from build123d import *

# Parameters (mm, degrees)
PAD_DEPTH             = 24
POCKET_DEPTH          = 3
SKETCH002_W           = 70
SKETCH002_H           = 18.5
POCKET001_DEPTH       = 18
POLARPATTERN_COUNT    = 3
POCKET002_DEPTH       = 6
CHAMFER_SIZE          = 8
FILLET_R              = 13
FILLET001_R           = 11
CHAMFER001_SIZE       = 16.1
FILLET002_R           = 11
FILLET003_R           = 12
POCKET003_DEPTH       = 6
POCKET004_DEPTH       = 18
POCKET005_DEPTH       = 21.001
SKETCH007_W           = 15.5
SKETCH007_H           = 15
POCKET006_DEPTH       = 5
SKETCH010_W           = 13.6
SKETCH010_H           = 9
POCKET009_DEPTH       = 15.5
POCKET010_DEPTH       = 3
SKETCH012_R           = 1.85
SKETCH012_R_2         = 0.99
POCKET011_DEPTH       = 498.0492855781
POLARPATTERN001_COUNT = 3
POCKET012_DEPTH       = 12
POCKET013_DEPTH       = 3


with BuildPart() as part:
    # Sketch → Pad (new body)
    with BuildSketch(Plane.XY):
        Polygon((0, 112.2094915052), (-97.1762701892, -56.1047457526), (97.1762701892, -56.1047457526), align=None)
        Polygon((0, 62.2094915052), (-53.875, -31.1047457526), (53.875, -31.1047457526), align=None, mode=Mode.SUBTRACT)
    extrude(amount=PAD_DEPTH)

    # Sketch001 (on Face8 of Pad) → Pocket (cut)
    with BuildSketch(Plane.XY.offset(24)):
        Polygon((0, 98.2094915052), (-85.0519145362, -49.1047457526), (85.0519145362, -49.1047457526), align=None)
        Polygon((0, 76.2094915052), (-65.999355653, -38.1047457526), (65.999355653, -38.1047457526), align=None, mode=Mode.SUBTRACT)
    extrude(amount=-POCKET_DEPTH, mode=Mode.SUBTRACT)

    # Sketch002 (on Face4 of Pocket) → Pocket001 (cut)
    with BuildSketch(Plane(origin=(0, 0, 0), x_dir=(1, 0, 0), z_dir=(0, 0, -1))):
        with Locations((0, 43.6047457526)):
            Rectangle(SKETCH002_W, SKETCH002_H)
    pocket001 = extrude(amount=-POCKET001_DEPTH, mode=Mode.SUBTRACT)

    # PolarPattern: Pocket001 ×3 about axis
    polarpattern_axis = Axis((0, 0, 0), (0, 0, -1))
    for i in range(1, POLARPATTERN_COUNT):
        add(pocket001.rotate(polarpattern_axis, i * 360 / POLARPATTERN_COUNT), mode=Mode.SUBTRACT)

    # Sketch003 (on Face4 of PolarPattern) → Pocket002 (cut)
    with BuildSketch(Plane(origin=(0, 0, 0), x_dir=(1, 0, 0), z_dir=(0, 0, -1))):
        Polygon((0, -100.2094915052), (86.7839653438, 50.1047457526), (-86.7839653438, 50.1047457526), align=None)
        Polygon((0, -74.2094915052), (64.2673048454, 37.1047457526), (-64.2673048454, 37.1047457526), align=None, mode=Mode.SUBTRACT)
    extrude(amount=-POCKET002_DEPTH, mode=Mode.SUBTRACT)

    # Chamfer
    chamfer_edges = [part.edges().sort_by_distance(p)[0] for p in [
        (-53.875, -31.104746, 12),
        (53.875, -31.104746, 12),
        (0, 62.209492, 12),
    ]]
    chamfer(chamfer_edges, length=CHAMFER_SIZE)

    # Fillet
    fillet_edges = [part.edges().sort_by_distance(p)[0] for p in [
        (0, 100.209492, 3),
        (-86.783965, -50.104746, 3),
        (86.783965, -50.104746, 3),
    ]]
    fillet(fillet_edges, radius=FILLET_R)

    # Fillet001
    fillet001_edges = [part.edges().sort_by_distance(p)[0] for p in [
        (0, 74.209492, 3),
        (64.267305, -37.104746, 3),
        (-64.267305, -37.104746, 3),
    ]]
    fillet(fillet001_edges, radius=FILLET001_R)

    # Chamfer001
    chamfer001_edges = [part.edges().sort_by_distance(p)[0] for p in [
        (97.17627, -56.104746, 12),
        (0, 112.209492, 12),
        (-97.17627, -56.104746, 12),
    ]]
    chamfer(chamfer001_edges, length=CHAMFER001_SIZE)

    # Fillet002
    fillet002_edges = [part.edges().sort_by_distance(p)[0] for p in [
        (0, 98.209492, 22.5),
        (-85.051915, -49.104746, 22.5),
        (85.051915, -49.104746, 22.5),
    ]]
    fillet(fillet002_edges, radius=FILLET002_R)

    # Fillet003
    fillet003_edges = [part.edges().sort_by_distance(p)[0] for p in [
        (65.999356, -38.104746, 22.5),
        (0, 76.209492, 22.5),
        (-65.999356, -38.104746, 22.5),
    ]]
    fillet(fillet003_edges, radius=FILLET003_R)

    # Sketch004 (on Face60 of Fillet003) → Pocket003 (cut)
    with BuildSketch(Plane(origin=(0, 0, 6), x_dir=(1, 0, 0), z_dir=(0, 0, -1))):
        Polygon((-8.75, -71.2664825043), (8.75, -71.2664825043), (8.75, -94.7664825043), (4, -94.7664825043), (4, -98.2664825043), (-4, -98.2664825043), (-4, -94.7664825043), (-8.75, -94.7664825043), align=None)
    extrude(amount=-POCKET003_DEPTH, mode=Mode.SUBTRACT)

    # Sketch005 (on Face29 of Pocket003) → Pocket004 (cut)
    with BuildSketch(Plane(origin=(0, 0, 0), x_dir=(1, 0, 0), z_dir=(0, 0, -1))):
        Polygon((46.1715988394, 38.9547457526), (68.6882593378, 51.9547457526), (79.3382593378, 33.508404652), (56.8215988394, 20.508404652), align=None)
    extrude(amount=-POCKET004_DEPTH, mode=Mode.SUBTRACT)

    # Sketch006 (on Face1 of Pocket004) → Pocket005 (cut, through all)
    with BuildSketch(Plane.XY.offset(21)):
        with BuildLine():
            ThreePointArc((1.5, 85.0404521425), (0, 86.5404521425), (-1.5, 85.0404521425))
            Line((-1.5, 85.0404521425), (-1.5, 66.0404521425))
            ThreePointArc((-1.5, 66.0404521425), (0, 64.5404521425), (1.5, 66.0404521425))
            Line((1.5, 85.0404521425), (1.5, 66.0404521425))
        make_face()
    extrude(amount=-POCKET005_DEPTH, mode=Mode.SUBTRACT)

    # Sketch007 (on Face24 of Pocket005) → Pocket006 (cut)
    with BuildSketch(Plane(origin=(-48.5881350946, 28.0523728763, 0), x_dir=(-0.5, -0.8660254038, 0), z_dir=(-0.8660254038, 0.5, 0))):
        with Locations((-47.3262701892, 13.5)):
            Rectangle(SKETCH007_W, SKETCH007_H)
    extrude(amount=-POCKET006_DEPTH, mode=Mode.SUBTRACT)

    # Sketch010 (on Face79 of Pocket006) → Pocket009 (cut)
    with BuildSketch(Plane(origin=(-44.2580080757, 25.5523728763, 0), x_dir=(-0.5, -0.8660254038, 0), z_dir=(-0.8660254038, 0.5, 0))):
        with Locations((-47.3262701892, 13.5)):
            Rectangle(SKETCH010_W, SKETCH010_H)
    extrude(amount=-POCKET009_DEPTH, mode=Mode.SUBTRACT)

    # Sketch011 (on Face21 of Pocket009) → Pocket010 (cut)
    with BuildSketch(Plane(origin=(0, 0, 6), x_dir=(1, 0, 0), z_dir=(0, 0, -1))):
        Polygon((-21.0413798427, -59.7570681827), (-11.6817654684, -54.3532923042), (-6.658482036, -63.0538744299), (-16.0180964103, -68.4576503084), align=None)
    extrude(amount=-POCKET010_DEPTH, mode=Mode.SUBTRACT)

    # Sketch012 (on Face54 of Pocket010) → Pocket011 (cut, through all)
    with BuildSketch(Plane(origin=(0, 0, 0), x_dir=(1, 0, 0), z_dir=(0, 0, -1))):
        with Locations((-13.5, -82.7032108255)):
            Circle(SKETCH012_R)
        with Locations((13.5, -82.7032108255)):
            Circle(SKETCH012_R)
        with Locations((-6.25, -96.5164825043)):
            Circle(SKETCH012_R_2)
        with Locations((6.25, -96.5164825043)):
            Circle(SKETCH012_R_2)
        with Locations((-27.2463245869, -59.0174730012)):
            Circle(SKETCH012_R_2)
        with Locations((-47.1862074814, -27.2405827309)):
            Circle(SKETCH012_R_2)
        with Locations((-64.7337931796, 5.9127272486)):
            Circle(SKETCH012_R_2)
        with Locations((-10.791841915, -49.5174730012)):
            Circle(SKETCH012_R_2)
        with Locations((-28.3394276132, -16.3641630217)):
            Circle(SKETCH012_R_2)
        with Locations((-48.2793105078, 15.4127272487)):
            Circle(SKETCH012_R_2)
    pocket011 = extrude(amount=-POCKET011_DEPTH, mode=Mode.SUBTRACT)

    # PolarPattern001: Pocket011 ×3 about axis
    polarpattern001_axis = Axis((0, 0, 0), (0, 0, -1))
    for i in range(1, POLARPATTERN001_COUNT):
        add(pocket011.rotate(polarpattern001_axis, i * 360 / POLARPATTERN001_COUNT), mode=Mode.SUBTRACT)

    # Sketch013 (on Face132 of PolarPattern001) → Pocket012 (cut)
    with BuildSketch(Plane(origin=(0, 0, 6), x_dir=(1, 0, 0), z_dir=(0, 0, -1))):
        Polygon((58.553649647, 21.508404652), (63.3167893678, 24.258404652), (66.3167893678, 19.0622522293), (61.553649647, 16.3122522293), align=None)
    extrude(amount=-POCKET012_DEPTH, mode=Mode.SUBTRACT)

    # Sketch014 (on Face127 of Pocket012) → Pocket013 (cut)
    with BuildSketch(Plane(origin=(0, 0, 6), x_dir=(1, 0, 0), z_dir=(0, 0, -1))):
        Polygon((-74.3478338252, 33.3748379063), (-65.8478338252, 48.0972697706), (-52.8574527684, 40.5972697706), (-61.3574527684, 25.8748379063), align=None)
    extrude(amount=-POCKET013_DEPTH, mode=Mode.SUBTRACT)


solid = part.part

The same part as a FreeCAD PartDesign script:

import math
import FreeCAD as App
import Part
import Sketcher
from FreeCAD import Vector
Q = App.Units.Quantity


def edges_at(feature, points):
    """Names of the edges that pass closest to the given points."""
    edges = feature.Shape.Edges
    near = lambda p: min(range(len(edges)), key=lambda i: edges[i].distToShape(Part.Vertex(*p))[0])
    return sorted({f"Edge{near(p) + 1}" for p in points})

doc = App.newDocument("Part")
body = doc.addObject("PartDesign::Body", "Body")

# Sketch on XY plane
sketch1 = doc.addObject("Sketcher::SketchObject", "Sketch")
body.addObject(sketch1)
sketch1.AttachmentSupport = (doc.XY_Plane, [""])
sketch1.MapMode = "FlatFace"
sketch1.addGeometry([
    Part.LineSegment(Vector(0, 112.209492, 0), Vector(-97.17627, -56.104746, 0)),  # 0
    Part.LineSegment(Vector(-97.17627, -56.104746, 0), Vector(97.17627, -56.104746, 0)),  # 1
    Part.LineSegment(Vector(97.17627, -56.104746, 0), Vector(0, 112.209492, 0)),  # 2
    Part.LineSegment(Vector(-53.875, -31.104746, 0), Vector(0, 62.209492, 0)),  # 3
    Part.LineSegment(Vector(0, 62.209492, 0), Vector(53.875, -31.104746, 0)),  # 4
    Part.LineSegment(Vector(53.875, -31.104746, 0), Vector(-53.875, -31.104746, 0)),  # 5
], False)
sketch1.addConstraint([
    Sketcher.Constraint("Coincident", 0, 2, 1, 1),
    Sketcher.Constraint("Coincident", 1, 2, 2, 1),
    Sketcher.Constraint("Coincident", 2, 2, 0, 1),
    Sketcher.Constraint("Coincident", 3, 2, 4, 1),
    Sketcher.Constraint("Coincident", 4, 2, 5, 1),
    Sketcher.Constraint("Coincident", 5, 2, 3, 1),
    Sketcher.Constraint("Horizontal", 1),
    Sketcher.Constraint("Horizontal", 5),
    Sketcher.Constraint("PointOnObject", 2, 2, -2),
    Sketcher.Constraint("PointOnObject", 3, 2, -2),
    Sketcher.Constraint("Parallel", 0, 3),
    Sketcher.Constraint("Parallel", 2, 4),
    Sketcher.Constraint("Equal", 0, 2),
    Sketcher.Constraint("Angle", 0, Q("-120 deg")),
    Sketcher.Constraint("DistanceY", 3, 2, 2, 2, Q("50 mm")),
    Sketcher.Constraint("DistanceY", 1, 2, 4, 2, Q("25 mm")),
    Sketcher.Constraint("DistanceX", 5, 2, 5, 1, Q("107.75 mm")),
    Sketcher.Constraint("DistanceY", -1, 1, 2, 2, Q("112.209492 mm")),
])
pad1 = doc.addObject("PartDesign::Pad", "Pad")
body.addObject(pad1)
pad1.Profile = sketch1
pad1.Length = 24

# Sketch on XY plane
sketch2 = doc.addObject("Sketcher::SketchObject", "Sketch001")
body.addObject(sketch2)
sketch2.AttachmentSupport = (doc.XY_Plane, [""])
sketch2.MapMode = "FlatFace"
sketch2.AttachmentOffset = App.Placement(Vector(0, 0, 24), App.Rotation())
sketch2.addGeometry([
    Part.LineSegment(Vector(0, 98.209492, 0), Vector(-85.051915, -49.104746, 0)),  # 0
    Part.LineSegment(Vector(-85.051915, -49.104746, 0), Vector(85.051915, -49.104746, 0)),  # 1
    Part.LineSegment(Vector(85.051915, -49.104746, 0), Vector(0, 98.209492, 0)),  # 2
    Part.LineSegment(Vector(-65.999356, -38.104746, 0), Vector(0, 76.209492, 0)),  # 3
    Part.LineSegment(Vector(0, 76.209492, 0), Vector(65.999356, -38.104746, 0)),  # 4
    Part.LineSegment(Vector(65.999356, -38.104746, 0), Vector(-65.999356, -38.104746, 0)),  # 5
], False)
sketch2.addConstraint([
    Sketcher.Constraint("Coincident", 0, 2, 1, 1),
    Sketcher.Constraint("Coincident", 1, 2, 2, 1),
    Sketcher.Constraint("Coincident", 2, 2, 0, 1),
    Sketcher.Constraint("Coincident", 3, 2, 4, 1),
    Sketcher.Constraint("Coincident", 4, 2, 5, 1),
    Sketcher.Constraint("Coincident", 5, 2, 3, 1),
    Sketcher.Constraint("Horizontal", 1),
    Sketcher.Constraint("Horizontal", 5),
    Sketcher.Constraint("PointOnObject", 2, 2, -2),
    Sketcher.Constraint("PointOnObject", 3, 2, -2),
    Sketcher.Constraint("Parallel", 0, 3),
    Sketcher.Constraint("Parallel", 2, 4),
    Sketcher.Constraint("Equal", 0, 2),
    Sketcher.Constraint("Angle", 0, Q("-120 deg")),
    Sketcher.Constraint("DistanceY", 3, 2, 2, 2, Q("22 mm")),
    Sketcher.Constraint("DistanceY", 1, 2, 4, 2, Q("11 mm")),
    Sketcher.Constraint("DistanceX", 1, 1, 1, 2, Q("170.103829 mm")),
    Sketcher.Constraint("DistanceY", -1, 1, 2, 2, Q("98.209492 mm")),
])
pocket1 = doc.addObject("PartDesign::Pocket", "Pocket")
body.addObject(pocket1)
pocket1.Profile = sketch2
pocket1.Length = 3

# Sketch on XY plane
sketch3 = doc.addObject("Sketcher::SketchObject", "Sketch002")
body.addObject(sketch3)
sketch3.AttachmentSupport = (doc.XY_Plane, [""])
sketch3.MapMode = "FlatFace"
sketch3.addGeometry([
    Part.LineSegment(Vector(-35, -52.854746, 0), Vector(-35, -34.354746, 0)),
    Part.LineSegment(Vector(-35, -34.354746, 0), Vector(35, -34.354746, 0)),
    Part.LineSegment(Vector(35, -34.354746, 0), Vector(35, -52.854746, 0)),
    Part.LineSegment(Vector(35, -52.854746, 0), Vector(-35, -52.854746, 0)),
], False)
sketch3.addConstraint([
    Sketcher.Constraint("Coincident", 0, 2, 1, 1),
    Sketcher.Constraint("Coincident", 1, 2, 2, 1),
    Sketcher.Constraint("Coincident", 2, 2, 3, 1),
    Sketcher.Constraint("Coincident", 3, 2, 0, 1),
    Sketcher.Constraint("Vertical", 0),
    Sketcher.Constraint("Horizontal", 1),
    Sketcher.Constraint("Vertical", 2),
    Sketcher.Constraint("Horizontal", 3),
    Sketcher.Constraint("DistanceX", 1, 1, 1, 2, Q("70 mm")),
    Sketcher.Constraint("DistanceY", 0, 1, 0, 2, Q("18.5 mm")),
    Sketcher.Constraint("DistanceX", 0, 2, -1, 1, Q("35 mm")),
    Sketcher.Constraint("DistanceY", 0, 2, -1, 1, Q("34.354746 mm")),
])
pocket2 = doc.addObject("PartDesign::Pocket", "Pocket001")
body.addObject(pocket2)
pocket2.Profile = sketch3
pocket2.Length = 18
pocket2.Reversed = True
doc.recompute()

polarpattern = doc.addObject("PartDesign::PolarPattern", "PolarPattern")
body.addObject(polarpattern)
polarpattern.Originals = [pocket2]
polarpattern.Axis = (doc.Z_Axis, [""])
polarpattern.Angle = 360
polarpattern.Occurrences = 3
body.Tip = polarpattern

# Sketch on XY plane
sketch4 = doc.addObject("Sketcher::SketchObject", "Sketch003")
body.addObject(sketch4)
sketch4.AttachmentSupport = (doc.XY_Plane, [""])
sketch4.MapMode = "FlatFace"
sketch4.addGeometry([
    Part.LineSegment(Vector(0, 100.209492, 0), Vector(86.783965, -50.104746, 0)),  # 0
    Part.LineSegment(Vector(86.783965, -50.104746, 0), Vector(-86.783965, -50.104746, 0)),  # 1
    Part.LineSegment(Vector(-86.783965, -50.104746, 0), Vector(0, 100.209492, 0)),  # 2
    Part.LineSegment(Vector(64.267305, -37.104746, 0), Vector(0, 74.209492, 0)),  # 3
    Part.LineSegment(Vector(0, 74.209492, 0), Vector(-64.267305, -37.104746, 0)),  # 4
    Part.LineSegment(Vector(-64.267305, -37.104746, 0), Vector(64.267305, -37.104746, 0)),  # 5
], False)
sketch4.addConstraint([
    Sketcher.Constraint("Coincident", 0, 2, 1, 1),
    Sketcher.Constraint("Coincident", 1, 2, 2, 1),
    Sketcher.Constraint("Coincident", 2, 2, 0, 1),
    Sketcher.Constraint("Coincident", 3, 2, 4, 1),
    Sketcher.Constraint("Coincident", 4, 2, 5, 1),
    Sketcher.Constraint("Coincident", 5, 2, 3, 1),
    Sketcher.Constraint("Horizontal", 1),
    Sketcher.Constraint("Horizontal", 5),
    Sketcher.Constraint("PointOnObject", 2, 2, -2),
    Sketcher.Constraint("PointOnObject", 3, 2, -2),
    Sketcher.Constraint("Parallel", 0, 3),
    Sketcher.Constraint("Parallel", 2, 4),
    Sketcher.Constraint("Equal", 0, 2),
    Sketcher.Constraint("Angle", 0, Q("-60 deg")),
    Sketcher.Constraint("DistanceY", 3, 2, 2, 2, Q("26 mm")),
    Sketcher.Constraint("DistanceY", 1, 2, 4, 2, Q("13 mm")),
    Sketcher.Constraint("DistanceX", 1, 2, 1, 1, Q("173.567931 mm")),
    Sketcher.Constraint("DistanceY", -1, 1, 2, 2, Q("100.209492 mm")),
])
pocket3 = doc.addObject("PartDesign::Pocket", "Pocket002")
body.addObject(pocket3)
pocket3.Profile = sketch4
pocket3.Length = 6
pocket3.Reversed = True
doc.recompute()

chamfer = doc.addObject("PartDesign::Chamfer", "Chamfer")
body.addObject(chamfer)
chamfer.Base = (pocket3, edges_at(pocket3, [(-53.875, -31.105, 12), (53.875, -31.105, 12), (0, 62.209, 12)]))
chamfer.Size = 8
doc.recompute()

fillet = doc.addObject("PartDesign::Fillet", "Fillet")
body.addObject(fillet)
fillet.Base = (chamfer, edges_at(chamfer, [(0, 100.209, 3), (-86.784, -50.105, 3), (86.784, -50.105, 3)]))
fillet.Radius = 13
doc.recompute()

fillet2 = doc.addObject("PartDesign::Fillet", "Fillet001")
body.addObject(fillet2)
fillet2.Base = (fillet, edges_at(fillet, [(0, 74.209, 3), (64.267, -37.105, 3), (-64.267, -37.105, 3)]))
fillet2.Radius = 11
doc.recompute()

chamfer2 = doc.addObject("PartDesign::Chamfer", "Chamfer001")
body.addObject(chamfer2)
chamfer2.Base = (fillet2, edges_at(fillet2, [(97.176, -56.105, 12), (0, 112.209, 12), (-97.176, -56.105, 12)]))
chamfer2.Size = 16.1
doc.recompute()

fillet3 = doc.addObject("PartDesign::Fillet", "Fillet002")
body.addObject(fillet3)
fillet3.Base = (chamfer2, edges_at(chamfer2, [(0, 98.209, 22.5), (-85.052, -49.105, 22.5), (85.052, -49.105, 22.5)]))
fillet3.Radius = 11
doc.recompute()

fillet4 = doc.addObject("PartDesign::Fillet", "Fillet003")
body.addObject(fillet4)
fillet4.Base = (fillet3, edges_at(fillet3, [(65.999, -38.105, 22.5), (0, 76.209, 22.5), (-65.999, -38.105, 22.5)]))
fillet4.Radius = 12

# Sketch on XY plane
sketch5 = doc.addObject("Sketcher::SketchObject", "Sketch004")
body.addObject(sketch5)
sketch5.AttachmentSupport = (doc.XY_Plane, [""])
sketch5.MapMode = "FlatFace"
sketch5.AttachmentOffset = App.Placement(Vector(0, 0, 6), App.Rotation())
sketch5.addGeometry([
    Part.LineSegment(Vector(8.75, 71.266483, 0), Vector(-8.75, 71.266483, 0)),  # 0
    Part.LineSegment(Vector(-8.75, 71.266483, 0), Vector(-8.75, 94.766483, 0)),  # 1
    Part.LineSegment(Vector(-8.75, 94.766483, 0), Vector(-4, 94.766483, 0)),  # 2
    Part.LineSegment(Vector(-4, 94.766483, 0), Vector(-4, 98.266483, 0)),  # 3
    Part.LineSegment(Vector(-4, 98.266483, 0), Vector(4, 98.266483, 0)),  # 4
    Part.LineSegment(Vector(4, 98.266483, 0), Vector(4, 94.766483, 0)),  # 5
    Part.LineSegment(Vector(4, 94.766483, 0), Vector(8.75, 94.766483, 0)),  # 6
    Part.LineSegment(Vector(8.75, 94.766483, 0), Vector(8.75, 71.266483, 0)),  # 7
], False)
sketch5.addConstraint([
    Sketcher.Constraint("Coincident", 0, 2, 1, 1),
    Sketcher.Constraint("Coincident", 1, 2, 2, 1),
    Sketcher.Constraint("Coincident", 2, 2, 3, 1),
    Sketcher.Constraint("Coincident", 3, 2, 4, 1),
    Sketcher.Constraint("Coincident", 4, 2, 5, 1),
    Sketcher.Constraint("Coincident", 5, 2, 6, 1),
    Sketcher.Constraint("Coincident", 6, 2, 7, 1),
    Sketcher.Constraint("Coincident", 7, 2, 0, 1),
    Sketcher.Constraint("Horizontal", 0),
    Sketcher.Constraint("Vertical", 1),
    Sketcher.Constraint("Horizontal", 2),
    Sketcher.Constraint("Vertical", 3),
    Sketcher.Constraint("Horizontal", 4),
    Sketcher.Constraint("Vertical", 5),
    Sketcher.Constraint("Horizontal", 6),
    Sketcher.Constraint("Vertical", 7),
    Sketcher.Constraint("Symmetric", 2, 2, 5, 2, -2),
    Sketcher.Constraint("Equal", 2, 6),
    Sketcher.Constraint("DistanceX", 4, 1, 4, 2, Q("8 mm")),
    Sketcher.Constraint("DistanceX", 0, 2, 0, 1, Q("17.5 mm")),
    Sketcher.Constraint("DistanceY", 1, 1, 1, 2, Q("23.5 mm")),
    Sketcher.Constraint("DistanceY", 3, 1, 3, 2, Q("3.5 mm")),
    Sketcher.Constraint("DistanceY", -1, 1, 0, 2, Q("71.266483 mm")),
])
pocket4 = doc.addObject("PartDesign::Pocket", "Pocket003")
body.addObject(pocket4)
pocket4.Profile = sketch5
pocket4.Length = 6
pocket4.Reversed = True

# Sketch on XY plane
sketch6 = doc.addObject("Sketcher::SketchObject", "Sketch005")
body.addObject(sketch6)
sketch6.AttachmentSupport = (doc.XY_Plane, [""])
sketch6.MapMode = "FlatFace"
sketch6.addGeometry([
    Part.LineSegment(Vector(68.688259, -51.954746, 0), Vector(46.171599, -38.954746, 0)),
    Part.LineSegment(Vector(46.171599, -38.954746, 0), Vector(56.821599, -20.508405, 0)),
    Part.LineSegment(Vector(56.821599, -20.508405, 0), Vector(79.338259, -33.508405, 0)),
    Part.LineSegment(Vector(79.338259, -33.508405, 0), Vector(68.688259, -51.954746, 0)),
], False)
sketch6.addConstraint([
    Sketcher.Constraint("Coincident", 0, 2, 1, 1),
    Sketcher.Constraint("Coincident", 1, 2, 2, 1),
    Sketcher.Constraint("Coincident", 2, 2, 3, 1),
    Sketcher.Constraint("Coincident", 3, 2, 0, 1),
    Sketcher.Constraint("Perpendicular", 0, 1),
    Sketcher.Constraint("Perpendicular", 1, 2),
    Sketcher.Constraint("Perpendicular", 2, 3),
    Sketcher.Constraint("Angle", 0, Q("150 deg")),
    Sketcher.Constraint("Distance", 0, Q("26 mm")),
    Sketcher.Constraint("Distance", 1, Q("21.3 mm")),
    Sketcher.Constraint("DistanceX", -1, 1, 0, 2, Q("46.171599 mm")),
    Sketcher.Constraint("DistanceY", 0, 2, -1, 1, Q("38.954746 mm")),
])
pocket5 = doc.addObject("PartDesign::Pocket", "Pocket004")
body.addObject(pocket5)
pocket5.Profile = sketch6
pocket5.Length = 18
pocket5.Reversed = True

# Sketch on XY plane
sketch7 = doc.addObject("Sketcher::SketchObject", "Sketch006")
body.addObject(sketch7)
sketch7.AttachmentSupport = (doc.XY_Plane, [""])
sketch7.MapMode = "FlatFace"
sketch7.AttachmentOffset = App.Placement(Vector(0, 0, 21), App.Rotation())
sketch7.addGeometry([
    Part.ArcOfCircle(Part.Circle(Vector(0, 85.040452, 0), Vector(0, 0, 1), 1.5), math.radians(0), math.radians(180)),
    Part.LineSegment(Vector(-1.5, 85.040452, 0), Vector(-1.5, 66.040452, 0)),
    Part.ArcOfCircle(Part.Circle(Vector(0, 66.040452, 0), Vector(0, 0, 1), 1.5), math.radians(180), math.radians(360)),
    Part.LineSegment(Vector(1.5, 66.040452, 0), Vector(1.5, 85.040452, 0)),
], False)
sketch7.addConstraint([
    Sketcher.Constraint("Tangent", 0, 2, 1, 1),
    Sketcher.Constraint("Tangent", 1, 2, 2, 1),
    Sketcher.Constraint("Tangent", 2, 2, 3, 1),
    Sketcher.Constraint("Tangent", 3, 2, 0, 1),
    Sketcher.Constraint("Vertical", 1),
    Sketcher.Constraint("Vertical", 3),
    Sketcher.Constraint("PointOnObject", 0, 3, -2),
    Sketcher.Constraint("Radius", 0, Q("1.5 mm")),
    Sketcher.Constraint("DistanceY", 1, 2, 1, 1, Q("19 mm")),
    Sketcher.Constraint("DistanceY", -1, 1, 0, 3, Q("85.040452 mm")),
])
pocket6 = doc.addObject("PartDesign::Pocket", "Pocket005")
body.addObject(pocket6)
pocket6.Profile = sketch7
pocket6.Type = "ThroughAll"

# Sketch on an angled plane
sketch8 = doc.addObject("Sketcher::SketchObject", "Sketch007")
body.addObject(sketch8)
sketch8.Placement = App.Placement(Vector(-48.588135, 28.052373, 0), App.Rotation(Vector(-0.5, -0.866025404, 0), Vector(0, 0, 1), Vector(-0.866025404, 0.5, 0), "ZXY"))
sketch8.addGeometry([
    Part.LineSegment(Vector(-55.07627, 21, 0), Vector(-55.07627, 6, 0)),
    Part.LineSegment(Vector(-55.07627, 6, 0), Vector(-39.57627, 6, 0)),
    Part.LineSegment(Vector(-39.57627, 6, 0), Vector(-39.57627, 21, 0)),
    Part.LineSegment(Vector(-39.57627, 21, 0), Vector(-55.07627, 21, 0)),
], False)
sketch8.addConstraint([
    Sketcher.Constraint("Coincident", 0, 2, 1, 1),
    Sketcher.Constraint("Coincident", 1, 2, 2, 1),
    Sketcher.Constraint("Coincident", 2, 2, 3, 1),
    Sketcher.Constraint("Coincident", 3, 2, 0, 1),
    Sketcher.Constraint("Vertical", 0),
    Sketcher.Constraint("Horizontal", 1),
    Sketcher.Constraint("Vertical", 2),
    Sketcher.Constraint("Horizontal", 3),
    Sketcher.Constraint("DistanceY", 0, 2, 0, 1, Q("15 mm")),
    Sketcher.Constraint("DistanceX", 1, 1, 1, 2, Q("15.5 mm")),
    Sketcher.Constraint("DistanceY", -1, 1, 0, 2, Q("6 mm")),
    Sketcher.Constraint("DistanceX", 0, 2, -1, 1, Q("55.07627 mm")),
])
pocket7 = doc.addObject("PartDesign::Pocket", "Pocket006")
body.addObject(pocket7)
pocket7.Profile = sketch8
pocket7.Length = 5

# Sketch on an angled plane
sketch9 = doc.addObject("Sketcher::SketchObject", "Sketch008")
body.addObject(sketch9)
sketch9.Placement = App.Placement(Vector(-44.258008, 25.552373, 0), App.Rotation(Vector(-0.5, -0.866025404, 0), Vector(0, 0, 1), Vector(-0.866025404, 0.5, 0), "ZXY"))
sketch9.addGeometry([
    Part.LineSegment(Vector(-54.12627, 18, 0), Vector(-54.12627, 9, 0)),
    Part.LineSegment(Vector(-54.12627, 9, 0), Vector(-40.52627, 9, 0)),
    Part.LineSegment(Vector(-40.52627, 9, 0), Vector(-40.52627, 18, 0)),
    Part.LineSegment(Vector(-40.52627, 18, 0), Vector(-54.12627, 18, 0)),
], False)
sketch9.addConstraint([
    Sketcher.Constraint("Coincident", 0, 2, 1, 1),
    Sketcher.Constraint("Coincident", 1, 2, 2, 1),
    Sketcher.Constraint("Coincident", 2, 2, 3, 1),
    Sketcher.Constraint("Coincident", 3, 2, 0, 1),
    Sketcher.Constraint("Vertical", 0),
    Sketcher.Constraint("Horizontal", 1),
    Sketcher.Constraint("Vertical", 2),
    Sketcher.Constraint("Horizontal", 3),
    Sketcher.Constraint("DistanceY", 0, 2, 0, 1, Q("9 mm")),
    Sketcher.Constraint("DistanceX", 1, 1, 1, 2, Q("13.6 mm")),
    Sketcher.Constraint("DistanceY", -1, 1, 0, 2, Q("9 mm")),
    Sketcher.Constraint("DistanceX", 0, 2, -1, 1, Q("54.12627 mm")),
])
pocket8 = doc.addObject("PartDesign::Pocket", "Pocket007")
body.addObject(pocket8)
pocket8.Profile = sketch9
pocket8.Length = 15.5

# Sketch on XY plane
sketch10 = doc.addObject("Sketcher::SketchObject", "Sketch009")
body.addObject(sketch10)
sketch10.AttachmentSupport = (doc.XY_Plane, [""])
sketch10.MapMode = "FlatFace"
sketch10.AttachmentOffset = App.Placement(Vector(0, 0, 6), App.Rotation())
sketch10.addGeometry([
    Part.LineSegment(Vector(-11.681765, 54.353292, 0), Vector(-21.04138, 59.757068, 0)),
    Part.LineSegment(Vector(-21.04138, 59.757068, 0), Vector(-16.018096, 68.45765, 0)),
    Part.LineSegment(Vector(-16.018096, 68.45765, 0), Vector(-6.658482, 63.053874, 0)),
    Part.LineSegment(Vector(-6.658482, 63.053874, 0), Vector(-11.681765, 54.353292, 0)),
], False)
sketch10.addConstraint([
    Sketcher.Constraint("Coincident", 0, 2, 1, 1),
    Sketcher.Constraint("Coincident", 1, 2, 2, 1),
    Sketcher.Constraint("Coincident", 2, 2, 3, 1),
    Sketcher.Constraint("Coincident", 3, 2, 0, 1),
    Sketcher.Constraint("Perpendicular", 0, 1),
    Sketcher.Constraint("Perpendicular", 1, 2),
    Sketcher.Constraint("Perpendicular", 2, 3),
    Sketcher.Constraint("Angle", 0, Q("150 deg")),
    Sketcher.Constraint("Distance", 0, Q("10.807552 mm")),
    Sketcher.Constraint("DistanceX", 0, 2, -1, 1, Q("21.04138 mm")),
    Sketcher.Constraint("DistanceY", -1, 1, 0, 2, Q("59.757068 mm")),
    Sketcher.Constraint("DistanceY", -1, 1, 1, 2, Q("68.45765 mm")),
])
pocket9 = doc.addObject("PartDesign::Pocket", "Pocket008")
body.addObject(pocket9)
pocket9.Profile = sketch10
pocket9.Length = 3
pocket9.Reversed = True

# Sketch on XY plane
sketch11 = doc.addObject("Sketcher::SketchObject", "Sketch010")
body.addObject(sketch11)
sketch11.AttachmentSupport = (doc.XY_Plane, [""])
sketch11.MapMode = "FlatFace"
sketch11.addGeometry([
    Part.Circle(Vector(-13.5, 82.703211, 0), Vector(0, 0, 1), 1.85),  # 0
    Part.Circle(Vector(13.5, 82.703211, 0), Vector(0, 0, 1), 1.85),  # 1
    Part.Circle(Vector(-6.25, 96.516483, 0), Vector(0, 0, 1), 0.99),  # 2
    Part.Circle(Vector(6.25, 96.516483, 0), Vector(0, 0, 1), 0.99),  # 3
    Part.Circle(Vector(-27.246325, 59.017473, 0), Vector(0, 0, 1), 0.99),  # 4
    Part.Circle(Vector(-47.186207, 27.240583, 0), Vector(0, 0, 1), 0.99),  # 5
    Part.Circle(Vector(-64.733793, -5.912727, 0), Vector(0, 0, 1), 0.99),  # 6
    Part.Circle(Vector(-10.791842, 49.517473, 0), Vector(0, 0, 1), 0.99),  # 7
    Part.Circle(Vector(-28.339428, 16.364163, 0), Vector(0, 0, 1), 0.99),  # 8
    Part.Circle(Vector(-48.279311, -15.412727, 0), Vector(0, 0, 1), 0.99),  # 9
], False)
sketch11.addConstraint([
    Sketcher.Constraint("Equal", 0, 1),
    Sketcher.Constraint("Equal", 2, 3),
    Sketcher.Constraint("Equal", 3, 4),
    Sketcher.Constraint("Equal", 4, 5),
    Sketcher.Constraint("Equal", 5, 6),
    Sketcher.Constraint("Equal", 6, 7),
    Sketcher.Constraint("Equal", 7, 8),
    Sketcher.Constraint("Equal", 8, 9),
    Sketcher.Constraint("Symmetric", 0, 3, 1, 3, -2),
    Sketcher.Constraint("Symmetric", 2, 3, 3, 3, -2),
    Sketcher.Constraint("Diameter", 0, Q("3.7 mm")),
    Sketcher.Constraint("Diameter", 2, Q("1.98 mm")),
    Sketcher.Constraint("DistanceX", 0, 3, 1, 3, Q("27 mm")),
    Sketcher.Constraint("DistanceX", 2, 3, 3, 3, Q("12.5 mm")),
    Sketcher.Constraint("DistanceY", 7, 3, 4, 3, Q("9.5 mm")),
    Sketcher.Constraint("DistanceY", 9, 3, 6, 3, Q("9.5 mm")),
    Sketcher.Constraint("DistanceY", 5, 3, 2, 3, Q("69.2759 mm")),
    Sketcher.Constraint("DistanceY", 6, 3, 4, 3, Q("64.9302 mm")),
    Sketcher.Constraint("DistanceY", -1, 1, 0, 3, Q("82.703211 mm")),
    Sketcher.Constraint("DistanceX", 7, 3, -1, 1, Q("10.791842 mm")),
    Sketcher.Constraint("DistanceX", 9, 3, -1, 1, Q("48.279311 mm")),
    Sketcher.Constraint("DistanceY", 0, 3, 2, 3, Q("13.813272 mm")),
    Sketcher.Constraint("DistanceY", 4, 3, 2, 3, Q("37.49901 mm")),
    Sketcher.Constraint("DistanceX", 6, 3, 4, 3, Q("37.487469 mm")),
    Sketcher.Constraint("DistanceX", 5, 3, 8, 3, Q("18.84678 mm")),
    Sketcher.Constraint("DistanceY", 8, 3, 5, 3, Q("10.87642 mm")),
    Sketcher.Constraint("DistanceX", 4, 3, -1, 1, Q("27.246325 mm")),
    Sketcher.Constraint("DistanceX", 5, 3, -1, 1, Q("47.186207 mm")),
])
pocket10 = doc.addObject("PartDesign::Pocket", "Pocket009")
body.addObject(pocket10)
pocket10.Profile = sketch11
pocket10.Type = "ThroughAll"
pocket10.Reversed = True
doc.recompute()

polarpattern2 = doc.addObject("PartDesign::PolarPattern", "PolarPattern001")
body.addObject(polarpattern2)
polarpattern2.Originals = [pocket10]
polarpattern2.Axis = (doc.Z_Axis, [""])
polarpattern2.Angle = 360
polarpattern2.Occurrences = 3
body.Tip = polarpattern2

# Sketch on XY plane
sketch12 = doc.addObject("Sketcher::SketchObject", "Sketch011")
body.addObject(sketch12)
sketch12.AttachmentSupport = (doc.XY_Plane, [""])
sketch12.MapMode = "FlatFace"
sketch12.AttachmentOffset = App.Placement(Vector(0, 0, 6), App.Rotation())
sketch12.addGeometry([
    Part.LineSegment(Vector(63.316789, -24.258405, 0), Vector(58.55365, -21.508405, 0)),
    Part.LineSegment(Vector(58.55365, -21.508405, 0), Vector(61.55365, -16.312252, 0)),
    Part.LineSegment(Vector(61.55365, -16.312252, 0), Vector(66.316789, -19.062252, 0)),
    Part.LineSegment(Vector(66.316789, -19.062252, 0), Vector(63.316789, -24.258405, 0)),
], False)
sketch12.addConstraint([
    Sketcher.Constraint("Coincident", 0, 2, 1, 1),
    Sketcher.Constraint("Coincident", 1, 2, 2, 1),
    Sketcher.Constraint("Coincident", 2, 2, 3, 1),
    Sketcher.Constraint("Coincident", 3, 2, 0, 1),
    Sketcher.Constraint("Perpendicular", 0, 1),
    Sketcher.Constraint("Perpendicular", 1, 2),
    Sketcher.Constraint("Perpendicular", 2, 3),
    Sketcher.Constraint("Angle", 0, Q("150 deg")),
    Sketcher.Constraint("Distance", 1, Q("6 mm")),
    Sketcher.Constraint("Distance", 0, Q("5.5 mm")),
    Sketcher.Constraint("DistanceX", -1, 1, 0, 2, Q("58.55365 mm")),
    Sketcher.Constraint("DistanceY", 0, 2, -1, 1, Q("21.508405 mm")),
])
pocket11 = doc.addObject("PartDesign::Pocket", "Pocket010")
body.addObject(pocket11)
pocket11.Profile = sketch12
pocket11.Length = 12
pocket11.Reversed = True

# Sketch on XY plane
sketch13 = doc.addObject("Sketcher::SketchObject", "Sketch012")
body.addObject(sketch13)
sketch13.AttachmentSupport = (doc.XY_Plane, [""])
sketch13.MapMode = "FlatFace"
sketch13.AttachmentOffset = App.Placement(Vector(0, 0, 6), App.Rotation())
sketch13.addGeometry([
    Part.LineSegment(Vector(-65.847834, -48.09727, 0), Vector(-74.347834, -33.374838, 0)),
    Part.LineSegment(Vector(-74.347834, -33.374838, 0), Vector(-61.357453, -25.874838, 0)),
    Part.LineSegment(Vector(-61.357453, -25.874838, 0), Vector(-52.857453, -40.59727, 0)),
    Part.LineSegment(Vector(-52.857453, -40.59727, 0), Vector(-65.847834, -48.09727, 0)),
], False)
sketch13.addConstraint([
    Sketcher.Constraint("Coincident", 0, 2, 1, 1),
    Sketcher.Constraint("Coincident", 1, 2, 2, 1),
    Sketcher.Constraint("Coincident", 2, 2, 3, 1),
    Sketcher.Constraint("Coincident", 3, 2, 0, 1),
    Sketcher.Constraint("Perpendicular", 0, 1),
    Sketcher.Constraint("Perpendicular", 1, 2),
    Sketcher.Constraint("Perpendicular", 2, 3),
    Sketcher.Constraint("Angle", 0, Q("120 deg")),
    Sketcher.Constraint("Distance", 0, Q("17 mm")),
    Sketcher.Constraint("Distance", 1, Q("15 mm")),
    Sketcher.Constraint("DistanceY", 2, 2, -1, 1, Q("40.59727 mm")),
    Sketcher.Constraint("DistanceX", 0, 2, -1, 1, Q("74.347834 mm")),
])
pocket12 = doc.addObject("PartDesign::Pocket", "Pocket011")
body.addObject(pocket12)
pocket12.Profile = sketch13
pocket12.Length = 3
pocket12.Reversed = True

doc.recompute()
